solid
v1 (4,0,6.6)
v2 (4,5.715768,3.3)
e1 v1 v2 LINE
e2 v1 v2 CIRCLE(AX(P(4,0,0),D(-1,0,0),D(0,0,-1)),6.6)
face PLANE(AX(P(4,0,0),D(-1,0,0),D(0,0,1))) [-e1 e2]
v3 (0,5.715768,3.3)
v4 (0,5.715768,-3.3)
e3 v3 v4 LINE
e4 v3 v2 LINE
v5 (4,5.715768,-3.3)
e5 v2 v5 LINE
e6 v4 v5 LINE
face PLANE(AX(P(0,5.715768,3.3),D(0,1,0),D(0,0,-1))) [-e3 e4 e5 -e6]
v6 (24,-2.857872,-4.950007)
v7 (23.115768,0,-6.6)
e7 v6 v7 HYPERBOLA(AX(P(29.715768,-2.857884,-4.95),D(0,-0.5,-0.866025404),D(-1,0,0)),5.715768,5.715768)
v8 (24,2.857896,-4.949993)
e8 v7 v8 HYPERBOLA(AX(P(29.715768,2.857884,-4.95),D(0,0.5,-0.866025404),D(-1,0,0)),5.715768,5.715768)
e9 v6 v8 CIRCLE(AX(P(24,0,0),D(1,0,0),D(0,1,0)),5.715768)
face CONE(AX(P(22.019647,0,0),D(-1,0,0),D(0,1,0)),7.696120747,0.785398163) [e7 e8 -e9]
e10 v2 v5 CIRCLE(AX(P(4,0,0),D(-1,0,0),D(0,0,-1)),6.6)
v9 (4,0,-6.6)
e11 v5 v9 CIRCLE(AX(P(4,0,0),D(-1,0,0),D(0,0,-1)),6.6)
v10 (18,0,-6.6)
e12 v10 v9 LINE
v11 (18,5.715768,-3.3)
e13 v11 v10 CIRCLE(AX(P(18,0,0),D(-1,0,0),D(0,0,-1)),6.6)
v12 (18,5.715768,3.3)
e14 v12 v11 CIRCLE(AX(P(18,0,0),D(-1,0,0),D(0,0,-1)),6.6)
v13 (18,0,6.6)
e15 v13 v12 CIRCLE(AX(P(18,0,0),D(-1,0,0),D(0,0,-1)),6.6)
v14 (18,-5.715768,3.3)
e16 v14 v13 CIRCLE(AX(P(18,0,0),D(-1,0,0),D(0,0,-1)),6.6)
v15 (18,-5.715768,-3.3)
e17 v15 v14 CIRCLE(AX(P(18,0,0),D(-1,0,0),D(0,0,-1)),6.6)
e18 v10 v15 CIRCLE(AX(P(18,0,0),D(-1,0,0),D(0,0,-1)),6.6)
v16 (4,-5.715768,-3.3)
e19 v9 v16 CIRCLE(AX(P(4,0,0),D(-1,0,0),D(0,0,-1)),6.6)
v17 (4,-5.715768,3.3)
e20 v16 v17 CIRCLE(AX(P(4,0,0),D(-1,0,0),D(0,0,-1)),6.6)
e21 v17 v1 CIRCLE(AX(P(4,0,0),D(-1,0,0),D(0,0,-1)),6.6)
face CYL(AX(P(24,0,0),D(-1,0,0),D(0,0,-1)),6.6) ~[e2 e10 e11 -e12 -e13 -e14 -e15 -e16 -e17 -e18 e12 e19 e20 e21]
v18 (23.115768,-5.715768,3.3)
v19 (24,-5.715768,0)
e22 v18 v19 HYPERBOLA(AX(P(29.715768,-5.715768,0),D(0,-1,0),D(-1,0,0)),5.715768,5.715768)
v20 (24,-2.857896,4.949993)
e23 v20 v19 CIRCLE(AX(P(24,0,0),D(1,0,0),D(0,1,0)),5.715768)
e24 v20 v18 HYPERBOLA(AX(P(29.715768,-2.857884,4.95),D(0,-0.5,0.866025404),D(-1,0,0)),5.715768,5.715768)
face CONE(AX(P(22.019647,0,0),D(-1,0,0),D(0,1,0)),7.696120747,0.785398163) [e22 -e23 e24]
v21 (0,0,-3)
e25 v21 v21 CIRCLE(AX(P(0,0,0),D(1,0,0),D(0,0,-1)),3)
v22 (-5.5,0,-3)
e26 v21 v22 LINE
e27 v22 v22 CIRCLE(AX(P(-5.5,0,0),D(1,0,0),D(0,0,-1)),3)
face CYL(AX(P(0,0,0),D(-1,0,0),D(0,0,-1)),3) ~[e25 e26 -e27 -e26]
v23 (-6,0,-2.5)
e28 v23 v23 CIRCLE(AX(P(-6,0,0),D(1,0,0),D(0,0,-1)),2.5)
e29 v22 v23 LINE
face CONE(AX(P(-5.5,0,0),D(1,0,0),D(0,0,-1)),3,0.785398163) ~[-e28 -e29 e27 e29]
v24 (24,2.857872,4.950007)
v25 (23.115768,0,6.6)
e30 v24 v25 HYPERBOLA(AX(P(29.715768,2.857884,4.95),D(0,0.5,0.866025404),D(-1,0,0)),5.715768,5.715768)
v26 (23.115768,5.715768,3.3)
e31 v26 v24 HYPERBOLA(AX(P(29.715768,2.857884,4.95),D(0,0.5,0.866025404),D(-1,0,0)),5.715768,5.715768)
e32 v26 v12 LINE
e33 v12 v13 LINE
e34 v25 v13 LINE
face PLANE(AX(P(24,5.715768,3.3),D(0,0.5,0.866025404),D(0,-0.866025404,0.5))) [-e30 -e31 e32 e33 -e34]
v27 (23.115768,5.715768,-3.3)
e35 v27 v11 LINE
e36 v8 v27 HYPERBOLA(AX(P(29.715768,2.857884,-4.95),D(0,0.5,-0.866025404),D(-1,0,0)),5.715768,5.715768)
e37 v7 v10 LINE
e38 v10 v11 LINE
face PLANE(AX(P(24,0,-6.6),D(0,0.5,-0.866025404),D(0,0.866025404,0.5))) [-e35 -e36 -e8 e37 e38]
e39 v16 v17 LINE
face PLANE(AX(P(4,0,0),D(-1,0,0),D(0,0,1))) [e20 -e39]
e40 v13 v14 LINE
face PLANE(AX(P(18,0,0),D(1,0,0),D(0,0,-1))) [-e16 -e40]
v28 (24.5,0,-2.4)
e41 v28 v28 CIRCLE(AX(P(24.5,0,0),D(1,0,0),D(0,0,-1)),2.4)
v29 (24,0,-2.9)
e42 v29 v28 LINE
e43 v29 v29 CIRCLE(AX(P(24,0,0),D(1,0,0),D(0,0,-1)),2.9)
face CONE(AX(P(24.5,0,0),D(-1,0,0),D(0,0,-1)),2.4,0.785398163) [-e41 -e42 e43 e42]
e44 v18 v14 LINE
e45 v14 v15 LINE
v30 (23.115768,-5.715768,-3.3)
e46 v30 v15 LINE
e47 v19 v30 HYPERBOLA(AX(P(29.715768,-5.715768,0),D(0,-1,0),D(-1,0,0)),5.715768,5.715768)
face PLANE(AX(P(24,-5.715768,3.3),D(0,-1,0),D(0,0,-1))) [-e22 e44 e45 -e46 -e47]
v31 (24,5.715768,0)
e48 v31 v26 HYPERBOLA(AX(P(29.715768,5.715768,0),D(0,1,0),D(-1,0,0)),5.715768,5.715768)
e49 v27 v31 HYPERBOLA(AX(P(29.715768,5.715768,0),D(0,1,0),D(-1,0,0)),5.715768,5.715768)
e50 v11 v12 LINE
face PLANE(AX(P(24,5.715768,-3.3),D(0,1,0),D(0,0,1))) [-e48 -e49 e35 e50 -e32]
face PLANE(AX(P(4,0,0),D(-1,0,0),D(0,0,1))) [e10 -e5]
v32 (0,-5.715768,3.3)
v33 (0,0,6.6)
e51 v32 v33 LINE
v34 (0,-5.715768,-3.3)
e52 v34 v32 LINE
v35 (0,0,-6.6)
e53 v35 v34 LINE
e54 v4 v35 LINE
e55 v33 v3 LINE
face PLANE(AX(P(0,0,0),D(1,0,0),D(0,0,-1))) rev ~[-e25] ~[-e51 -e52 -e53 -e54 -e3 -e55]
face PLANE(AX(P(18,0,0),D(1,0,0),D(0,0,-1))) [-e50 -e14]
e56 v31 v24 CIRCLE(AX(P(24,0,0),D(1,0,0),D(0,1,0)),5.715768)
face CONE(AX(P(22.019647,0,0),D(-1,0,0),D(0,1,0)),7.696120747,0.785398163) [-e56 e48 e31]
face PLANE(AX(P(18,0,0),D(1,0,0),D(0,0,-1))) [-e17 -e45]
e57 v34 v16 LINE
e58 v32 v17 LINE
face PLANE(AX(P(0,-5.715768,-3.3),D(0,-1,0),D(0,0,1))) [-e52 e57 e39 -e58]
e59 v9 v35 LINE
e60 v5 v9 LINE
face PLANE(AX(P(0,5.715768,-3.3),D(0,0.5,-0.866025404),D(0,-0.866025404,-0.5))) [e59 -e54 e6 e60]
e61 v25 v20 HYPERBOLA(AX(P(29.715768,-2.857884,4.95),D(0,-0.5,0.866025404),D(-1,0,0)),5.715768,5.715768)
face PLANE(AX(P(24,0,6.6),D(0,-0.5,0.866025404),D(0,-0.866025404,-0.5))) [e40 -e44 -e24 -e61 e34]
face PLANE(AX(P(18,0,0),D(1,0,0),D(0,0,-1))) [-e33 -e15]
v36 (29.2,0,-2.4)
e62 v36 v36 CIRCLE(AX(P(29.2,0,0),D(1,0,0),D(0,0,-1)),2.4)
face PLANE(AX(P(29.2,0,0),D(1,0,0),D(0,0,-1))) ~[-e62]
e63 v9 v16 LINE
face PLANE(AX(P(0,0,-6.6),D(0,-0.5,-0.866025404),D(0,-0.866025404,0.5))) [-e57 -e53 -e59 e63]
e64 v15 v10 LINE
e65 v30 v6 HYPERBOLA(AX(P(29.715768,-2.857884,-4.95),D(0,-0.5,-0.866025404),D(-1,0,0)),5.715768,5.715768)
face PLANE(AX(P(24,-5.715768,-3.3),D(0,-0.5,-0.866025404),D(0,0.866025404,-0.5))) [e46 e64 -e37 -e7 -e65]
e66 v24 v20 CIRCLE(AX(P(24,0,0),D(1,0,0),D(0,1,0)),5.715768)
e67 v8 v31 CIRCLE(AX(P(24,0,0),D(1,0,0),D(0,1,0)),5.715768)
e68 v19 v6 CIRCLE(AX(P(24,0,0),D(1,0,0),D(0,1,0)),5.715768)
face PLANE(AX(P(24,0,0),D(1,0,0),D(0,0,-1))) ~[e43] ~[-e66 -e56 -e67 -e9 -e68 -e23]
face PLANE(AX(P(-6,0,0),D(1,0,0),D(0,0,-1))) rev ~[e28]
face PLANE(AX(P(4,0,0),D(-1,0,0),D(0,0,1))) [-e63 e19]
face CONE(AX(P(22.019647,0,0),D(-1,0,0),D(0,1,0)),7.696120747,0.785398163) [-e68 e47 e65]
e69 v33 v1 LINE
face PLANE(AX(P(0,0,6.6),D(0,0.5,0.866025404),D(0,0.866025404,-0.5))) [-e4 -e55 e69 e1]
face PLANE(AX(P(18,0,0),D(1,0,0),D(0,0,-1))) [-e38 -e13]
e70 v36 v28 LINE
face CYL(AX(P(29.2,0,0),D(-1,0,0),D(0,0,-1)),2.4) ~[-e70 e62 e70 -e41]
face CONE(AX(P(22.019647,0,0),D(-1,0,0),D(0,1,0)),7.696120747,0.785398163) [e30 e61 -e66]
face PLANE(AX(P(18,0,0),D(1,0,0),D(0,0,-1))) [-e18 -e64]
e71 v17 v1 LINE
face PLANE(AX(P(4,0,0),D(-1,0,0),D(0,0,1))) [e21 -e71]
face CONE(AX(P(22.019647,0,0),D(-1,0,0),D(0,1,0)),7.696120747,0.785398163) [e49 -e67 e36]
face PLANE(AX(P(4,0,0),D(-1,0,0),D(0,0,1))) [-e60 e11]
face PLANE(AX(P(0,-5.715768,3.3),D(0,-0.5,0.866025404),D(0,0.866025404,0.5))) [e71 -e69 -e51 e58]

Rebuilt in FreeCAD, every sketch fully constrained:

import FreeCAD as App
import Part
import Sketcher

V = App.Vector
Q = App.Units.Quantity


def edges_at(feature, points):
    """Names of the edges that pass closest to the given points."""
    edges = feature.Shape.Edges
    near = lambda p: min(range(len(edges)), key=lambda i: edges[i].distToShape(Part.Vertex(*p))[0])
    return sorted({f"Edge{near(p) + 1}" for p in points})


def add_polygon(sketch, points):
    """Adds a closed chain of lines whose ends are joined by coincident constraints."""
    first, n = sketch.GeometryCount, len(points)
    for a, b in zip(points, points[1:] + points[:1]):
        sketch.addGeometry(Part.LineSegment(App.Vector(*a, 0), App.Vector(*b, 0)), False)
    for i in range(n):
        sketch.addConstraint(Sketcher.Constraint("Coincident", first + i, 2, first + (i + 1) % n, 1))

doc = App.newDocument("Part")
body = doc.addObject("PartDesign::Body", "Body")

# Sketch on XZ plane
sketch1 = body.newObject("Sketcher::SketchObject", "Sketch")
sketch1.AttachmentSupport = (doc.getObject("XZ_Plane"), [""])
sketch1.MapMode = "FlatFace"
add_polygon(sketch1, [(0, -6.6), (0, -3), (-6, -3), (-6, 0), (29.2, 0), (29.2, -2.4), (24, -2.4), (24, -6.6)])  # lines 0-7
sketch1.addConstraint([
    Sketcher.Constraint("Vertical", 0),
    Sketcher.Constraint("Horizontal", 1),
    Sketcher.Constraint("Vertical", 2),
    Sketcher.Constraint("Horizontal", 3),
    Sketcher.Constraint("Vertical", 4),
    Sketcher.Constraint("Horizontal", 5),
    Sketcher.Constraint("Vertical", 6),
    Sketcher.Constraint("Horizontal", 7),
    Sketcher.Constraint("PointOnObject", 0, 2, -2),
    Sketcher.Constraint("PointOnObject", 2, 2, -1),
    Sketcher.Constraint("DistanceX", 1, 2, 1, 1, Q("6 mm")),
    Sketcher.Constraint("DistanceX", 7, 2, 7, 1, Q("24 mm")),
    Sketcher.Constraint("DistanceY", 2, 1, 2, 2, Q("3 mm")),
    Sketcher.Constraint("DistanceX", 3, 1, 3, 2, Q("35.2 mm")),
    Sketcher.Constraint("DistanceY", 0, 1, 0, 2, Q("3.6 mm")),
    Sketcher.Constraint("DistanceY", 4, 2, 4, 1, Q("2.4 mm")),
])
revolution = body.newObject("PartDesign::Revolution", "Revolution")
revolution.Profile = sketch1
revolution.ReferenceAxis = (sketch1, ["H_Axis"])
revolution.Angle = 360

# Sketch on YZ plane
sketch2 = body.newObject("Sketcher::SketchObject", "Sketch001")
sketch2.AttachmentSupport = (doc.getObject("YZ_Plane"), [""])
sketch2.MapMode = "FlatFace"
sketch2.AttachmentOffset = App.Placement(V(0, 0, 24), App.Rotation())
add_polygon(sketch2, [(12, 12), (-12, 12), (-12, -12), (12, -12)])  # lines 0-3
add_polygon(sketch2, [(0, -7), (-6, -3), (-6, 3), (0, 7), (6, 3), (6, -3)])  # lines 4-9
sketch2.addConstraint([
    Sketcher.Constraint("Horizontal", 0),
    Sketcher.Constraint("Vertical", 1),
    Sketcher.Constraint("Horizontal", 2),
    Sketcher.Constraint("Vertical", 3),
    Sketcher.Constraint("Vertical", 5),
    Sketcher.Constraint("Vertical", 8),
    Sketcher.Constraint("Symmetric", 0, 2, 2, 2, -1, 1),
    Sketcher.Constraint("Symmetric", 4, 2, 7, 2, -1, 1),
    Sketcher.Constraint("Symmetric", 6, 2, 9, 2, -1, 1),
    Sketcher.Constraint("PointOnObject", 6, 2, -2),
    Sketcher.Constraint("Parallel", 6, 9),
    Sketcher.Constraint("Horizontal", 5, 2, 7, 2),
    Sketcher.Constraint("Equal", 2, 1),
    Sketcher.Constraint("Angle", 4, Q("150 deg")),
    Sketcher.Constraint("DistanceY", 5, 1, 5, 2, Q("6.6 mm")),
    Sketcher.Constraint("Distance", 4, Q("6.6 mm")),
    Sketcher.Constraint("DistanceX", 0, 2, 0, 1, Q("23.168 mm")),
])
pocket1 = body.newObject("PartDesign::Pocket", "Pocket")
pocket1.Profile = sketch2
pocket1.Length = 6

# Sketch on YZ plane
sketch3 = body.newObject("Sketcher::SketchObject", "Sketch002")
sketch3.AttachmentSupport = (doc.getObject("YZ_Plane"), [""])
sketch3.MapMode = "FlatFace"
add_polygon(sketch3, [(12, -12), (-12, -12), (-12, 12), (12, 12)])  # lines 0-3
add_polygon(sketch3, [(0, 7), (-6, 3), (-6, -3), (0, -7), (6, -3), (6, 3)])  # lines 4-9
sketch3.addConstraint([
    Sketcher.Constraint("Horizontal", 0),
    Sketcher.Constraint("Vertical", 1),
    Sketcher.Constraint("Horizontal", 2),
    Sketcher.Constraint("Vertical", 3),
    Sketcher.Constraint("Vertical", 5),
    Sketcher.Constraint("Vertical", 8),
    Sketcher.Constraint("Symmetric", 0, 2, 2, 2, -1, 1),
    Sketcher.Constraint("Symmetric", 4, 2, 7, 2, -1, 1),
    Sketcher.Constraint("Symmetric", 6, 2, 9, 2, -1, 1),
    Sketcher.Constraint("PointOnObject", 6, 2, -2),
    Sketcher.Constraint("Parallel", 6, 9),
    Sketcher.Constraint("Horizontal", 5, 2, 7, 2),
    Sketcher.Constraint("Equal", 2, 1),
    Sketcher.Constraint("Angle", 4, Q("-150 deg")),
    Sketcher.Constraint("DistanceY", 5, 2, 5, 1, Q("6.6 mm")),
    Sketcher.Constraint("Distance", 4, Q("6.6 mm")),
    Sketcher.Constraint("DistanceX", 0, 2, 0, 1, Q("23.168 mm")),
])
pocket2 = body.newObject("PartDesign::Pocket", "Pocket001")
pocket2.Profile = sketch3
pocket2.Length = 4
pocket2.Reversed = True

# Sketch on XY plane
sketch4 = body.newObject("Sketcher::SketchObject", "Sketch003")
sketch4.AttachmentSupport = (doc.getObject("XY_Plane"), [""])
sketch4.MapMode = "FlatFace"
add_polygon(sketch4, [(22, 7.7), (26, 3.7), (26, 7.7)])  # lines 0-2
sketch4.addConstraint([
    Sketcher.Constraint("Vertical", 1),
    Sketcher.Constraint("Horizontal", 2),
    Sketcher.Constraint("Equal", 2, 1),
    Sketcher.Constraint("DistanceX", 2, 2, 2, 1, Q("3.960706 mm")),
    Sketcher.Constraint("DistanceY", -1, 1, 1, 2, Q("7.696121 mm")),
    Sketcher.Constraint("DistanceX", -1, 1, 0, 2, Q("25.980353 mm")),
])
groove = body.newObject("PartDesign::Groove", "Groove")
groove.Profile = sketch4
groove.ReferenceAxis = (sketch4, ["H_Axis"])
groove.Angle = 360
doc.recompute()

chamfer = body.newObject("PartDesign::Chamfer", "Chamfer")
chamfer.Base = (groove, edges_at(groove, [(24, 0, 2.4), (-6, 0, 3)]))
chamfer.Size = 0.5

doc.recompute()
